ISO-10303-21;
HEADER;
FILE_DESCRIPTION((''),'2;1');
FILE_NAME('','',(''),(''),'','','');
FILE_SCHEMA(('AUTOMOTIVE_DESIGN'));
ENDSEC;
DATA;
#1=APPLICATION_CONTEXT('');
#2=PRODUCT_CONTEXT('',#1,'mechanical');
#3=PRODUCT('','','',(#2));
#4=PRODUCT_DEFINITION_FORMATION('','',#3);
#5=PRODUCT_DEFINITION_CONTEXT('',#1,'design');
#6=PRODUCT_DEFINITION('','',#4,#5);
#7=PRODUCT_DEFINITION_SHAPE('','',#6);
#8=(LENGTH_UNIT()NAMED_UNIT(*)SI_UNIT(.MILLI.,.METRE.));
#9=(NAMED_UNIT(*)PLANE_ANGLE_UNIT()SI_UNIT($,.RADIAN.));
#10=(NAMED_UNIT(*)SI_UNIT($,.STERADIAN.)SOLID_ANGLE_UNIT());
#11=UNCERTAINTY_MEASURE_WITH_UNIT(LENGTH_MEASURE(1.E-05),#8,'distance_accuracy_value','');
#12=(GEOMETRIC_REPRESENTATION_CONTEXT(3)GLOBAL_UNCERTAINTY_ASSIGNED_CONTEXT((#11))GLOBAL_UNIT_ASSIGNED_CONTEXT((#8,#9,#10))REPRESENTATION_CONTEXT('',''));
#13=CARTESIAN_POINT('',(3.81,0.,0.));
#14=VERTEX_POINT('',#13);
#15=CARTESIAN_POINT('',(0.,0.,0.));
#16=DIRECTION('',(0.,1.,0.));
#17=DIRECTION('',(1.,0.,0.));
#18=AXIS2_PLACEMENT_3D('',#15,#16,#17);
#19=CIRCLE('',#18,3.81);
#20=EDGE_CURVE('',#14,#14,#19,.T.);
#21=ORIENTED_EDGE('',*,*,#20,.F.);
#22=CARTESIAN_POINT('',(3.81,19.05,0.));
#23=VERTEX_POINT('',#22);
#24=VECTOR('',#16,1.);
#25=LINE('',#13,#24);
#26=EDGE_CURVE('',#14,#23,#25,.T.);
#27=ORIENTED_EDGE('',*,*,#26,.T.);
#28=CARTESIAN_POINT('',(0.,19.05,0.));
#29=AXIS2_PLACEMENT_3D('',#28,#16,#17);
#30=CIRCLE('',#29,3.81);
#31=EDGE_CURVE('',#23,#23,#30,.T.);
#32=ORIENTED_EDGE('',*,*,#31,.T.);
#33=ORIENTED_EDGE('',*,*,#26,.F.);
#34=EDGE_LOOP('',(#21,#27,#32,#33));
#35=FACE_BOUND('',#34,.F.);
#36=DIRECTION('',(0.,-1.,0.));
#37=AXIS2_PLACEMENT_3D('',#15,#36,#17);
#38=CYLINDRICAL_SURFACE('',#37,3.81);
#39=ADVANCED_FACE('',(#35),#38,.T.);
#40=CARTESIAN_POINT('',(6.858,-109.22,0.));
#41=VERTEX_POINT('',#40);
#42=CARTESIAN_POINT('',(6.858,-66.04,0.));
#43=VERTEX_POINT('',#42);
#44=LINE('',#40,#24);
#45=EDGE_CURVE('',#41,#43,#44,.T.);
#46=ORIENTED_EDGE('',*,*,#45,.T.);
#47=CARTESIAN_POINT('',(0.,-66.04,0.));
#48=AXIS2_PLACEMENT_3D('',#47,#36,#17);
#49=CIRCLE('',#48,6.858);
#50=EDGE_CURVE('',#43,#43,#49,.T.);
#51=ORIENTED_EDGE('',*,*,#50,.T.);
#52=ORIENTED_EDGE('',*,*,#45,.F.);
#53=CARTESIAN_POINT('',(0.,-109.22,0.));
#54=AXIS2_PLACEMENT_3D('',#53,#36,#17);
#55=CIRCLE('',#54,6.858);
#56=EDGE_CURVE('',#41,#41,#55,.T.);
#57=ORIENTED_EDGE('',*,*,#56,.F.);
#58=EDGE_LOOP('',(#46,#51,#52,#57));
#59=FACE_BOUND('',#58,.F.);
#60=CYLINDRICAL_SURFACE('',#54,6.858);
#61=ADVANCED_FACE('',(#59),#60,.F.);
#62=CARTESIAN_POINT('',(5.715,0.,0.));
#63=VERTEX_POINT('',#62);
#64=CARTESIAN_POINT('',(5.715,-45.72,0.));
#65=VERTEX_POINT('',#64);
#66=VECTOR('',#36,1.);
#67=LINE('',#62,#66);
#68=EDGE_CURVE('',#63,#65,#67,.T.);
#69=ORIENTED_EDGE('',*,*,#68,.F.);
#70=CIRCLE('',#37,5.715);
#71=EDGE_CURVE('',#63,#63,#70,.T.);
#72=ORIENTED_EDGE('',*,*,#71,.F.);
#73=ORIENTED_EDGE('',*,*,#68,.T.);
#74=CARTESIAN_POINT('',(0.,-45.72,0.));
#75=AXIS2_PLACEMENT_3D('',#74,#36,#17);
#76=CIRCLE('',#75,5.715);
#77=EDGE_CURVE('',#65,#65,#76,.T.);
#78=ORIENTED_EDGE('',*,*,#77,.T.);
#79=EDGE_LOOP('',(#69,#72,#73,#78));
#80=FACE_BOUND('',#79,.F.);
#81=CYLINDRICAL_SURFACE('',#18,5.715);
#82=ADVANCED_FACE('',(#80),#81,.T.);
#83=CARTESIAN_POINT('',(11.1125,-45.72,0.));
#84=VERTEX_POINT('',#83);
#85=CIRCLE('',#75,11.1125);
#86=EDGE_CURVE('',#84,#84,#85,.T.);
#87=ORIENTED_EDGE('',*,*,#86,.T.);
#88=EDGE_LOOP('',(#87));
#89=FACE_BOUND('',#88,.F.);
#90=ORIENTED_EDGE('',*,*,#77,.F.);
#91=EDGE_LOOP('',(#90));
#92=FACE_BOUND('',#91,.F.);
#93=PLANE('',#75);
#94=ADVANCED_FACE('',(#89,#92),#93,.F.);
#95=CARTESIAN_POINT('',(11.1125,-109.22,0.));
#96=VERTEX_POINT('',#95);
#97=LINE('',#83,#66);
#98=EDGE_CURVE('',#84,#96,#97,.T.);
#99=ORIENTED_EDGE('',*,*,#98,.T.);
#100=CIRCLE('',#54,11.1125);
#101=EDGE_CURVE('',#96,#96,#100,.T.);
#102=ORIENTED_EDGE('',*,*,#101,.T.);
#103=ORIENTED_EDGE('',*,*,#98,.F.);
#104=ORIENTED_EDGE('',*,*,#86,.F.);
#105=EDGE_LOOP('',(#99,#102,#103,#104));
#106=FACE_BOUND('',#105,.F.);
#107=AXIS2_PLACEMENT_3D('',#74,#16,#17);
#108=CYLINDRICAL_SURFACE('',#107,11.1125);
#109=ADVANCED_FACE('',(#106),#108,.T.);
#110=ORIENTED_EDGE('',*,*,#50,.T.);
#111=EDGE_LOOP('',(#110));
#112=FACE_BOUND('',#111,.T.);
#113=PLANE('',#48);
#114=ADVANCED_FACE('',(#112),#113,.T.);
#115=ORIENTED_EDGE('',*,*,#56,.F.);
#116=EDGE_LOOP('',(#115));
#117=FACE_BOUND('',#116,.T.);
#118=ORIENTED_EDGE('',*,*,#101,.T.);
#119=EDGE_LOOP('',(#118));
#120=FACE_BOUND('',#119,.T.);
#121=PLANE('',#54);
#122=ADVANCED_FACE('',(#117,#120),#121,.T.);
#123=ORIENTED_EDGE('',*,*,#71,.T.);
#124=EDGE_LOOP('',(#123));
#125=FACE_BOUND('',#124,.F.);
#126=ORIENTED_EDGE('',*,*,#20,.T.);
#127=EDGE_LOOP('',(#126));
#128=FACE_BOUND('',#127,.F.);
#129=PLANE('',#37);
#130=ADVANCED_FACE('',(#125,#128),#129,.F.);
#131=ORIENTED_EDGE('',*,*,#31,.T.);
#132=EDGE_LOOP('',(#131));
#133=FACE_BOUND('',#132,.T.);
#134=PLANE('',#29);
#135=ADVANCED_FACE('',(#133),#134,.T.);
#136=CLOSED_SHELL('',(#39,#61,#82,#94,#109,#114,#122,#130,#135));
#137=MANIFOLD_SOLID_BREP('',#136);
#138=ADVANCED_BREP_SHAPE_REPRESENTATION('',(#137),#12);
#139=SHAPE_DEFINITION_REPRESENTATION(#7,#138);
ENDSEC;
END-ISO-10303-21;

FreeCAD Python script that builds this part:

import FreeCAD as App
import Part
import Sketcher

V = App.Vector
Q = App.Units.Quantity

doc = App.newDocument("Part")
body = doc.addObject("PartDesign::Body", "Body")

# Sketch on XZ plane
sketch1 = doc.addObject("Sketcher::SketchObject", "Sketch")
body.addObject(sketch1)
sketch1.AttachmentSupport = (doc.XZ_Plane, [""])
sketch1.MapMode = "FlatFace"
sketch1.addGeometry(Part.Circle(V(0, 0, 0), V(0, 0, 1), 6), False)
sketch1.addConstraint(Sketcher.Constraint("Coincident", 0, 3, -1, 1))
sketch1.addConstraint(Sketcher.Constraint("Diameter", 0, Q("0.45 in")))
pad1 = doc.addObject("PartDesign::Pad", "Pad")
body.addObject(pad1)
pad1.Profile = sketch1
pad1.Length = Q("1.8 in")

# Sketch on XZ plane
sketch2 = doc.addObject("Sketcher::SketchObject", "Sketch001")
body.addObject(sketch2)
sketch2.AttachmentSupport = (doc.XZ_Plane, [""])
sketch2.MapMode = "FlatFace"
sketch2.AttachmentOffset = App.Placement(V(0, 0, 1.8 * 25.4), App.Rotation())
sketch2.addGeometry(Part.Circle(V(0, 0, 0), V(0, 0, 1), 11), False)
sketch2.addConstraint(Sketcher.Constraint("Coincident", 0, 3, -1, 1))
sketch2.addConstraint(Sketcher.Constraint("Diameter", 0, Q("0.875 in")))
pad2 = doc.addObject("PartDesign::Pad", "Pad001")
body.addObject(pad2)
pad2.Profile = sketch2
pad2.Length = Q("2.5 in")

# Sketch on XZ plane
sketch3 = doc.addObject("Sketcher::SketchObject", "Sketch002")
body.addObject(sketch3)
sketch3.AttachmentSupport = (doc.XZ_Plane, [""])
sketch3.MapMode = "FlatFace"
sketch3.AttachmentOffset = App.Placement(V(0, 0, 4.3 * 25.4), App.Rotation())
sketch3.addGeometry(Part.Circle(V(0, 0, 0), V(0, 0, 1), 7), False)
sketch3.addConstraint(Sketcher.Constraint("Coincident", 0, 3, -1, 1))
sketch3.addConstraint(Sketcher.Constraint("Diameter", 0, Q("0.54 in")))
pocket1 = doc.addObject("PartDesign::Pocket", "Pocket")
body.addObject(pocket1)
pocket1.Profile = sketch3
pocket1.Length = Q("1.7 in")

# Sketch on XZ plane
sketch4 = doc.addObject("Sketcher::SketchObject", "Sketch003")
body.addObject(sketch4)
sketch4.AttachmentSupport = (doc.XZ_Plane, [""])
sketch4.MapMode = "FlatFace"
sketch4.addGeometry(Part.Circle(V(0, 0, 0), V(0, 0, 1), 3.8), False)
sketch4.addConstraint(Sketcher.Constraint("Coincident", 0, 3, -1, 1))
sketch4.addConstraint(Sketcher.Constraint("Diameter", 0, Q("0.3 in")))
pad3 = doc.addObject("PartDesign::Pad", "Pad002")
body.addObject(pad3)
pad3.Profile = sketch4
pad3.Length = Q("0.75 in")
pad3.Reversed = True

doc.recompute()
